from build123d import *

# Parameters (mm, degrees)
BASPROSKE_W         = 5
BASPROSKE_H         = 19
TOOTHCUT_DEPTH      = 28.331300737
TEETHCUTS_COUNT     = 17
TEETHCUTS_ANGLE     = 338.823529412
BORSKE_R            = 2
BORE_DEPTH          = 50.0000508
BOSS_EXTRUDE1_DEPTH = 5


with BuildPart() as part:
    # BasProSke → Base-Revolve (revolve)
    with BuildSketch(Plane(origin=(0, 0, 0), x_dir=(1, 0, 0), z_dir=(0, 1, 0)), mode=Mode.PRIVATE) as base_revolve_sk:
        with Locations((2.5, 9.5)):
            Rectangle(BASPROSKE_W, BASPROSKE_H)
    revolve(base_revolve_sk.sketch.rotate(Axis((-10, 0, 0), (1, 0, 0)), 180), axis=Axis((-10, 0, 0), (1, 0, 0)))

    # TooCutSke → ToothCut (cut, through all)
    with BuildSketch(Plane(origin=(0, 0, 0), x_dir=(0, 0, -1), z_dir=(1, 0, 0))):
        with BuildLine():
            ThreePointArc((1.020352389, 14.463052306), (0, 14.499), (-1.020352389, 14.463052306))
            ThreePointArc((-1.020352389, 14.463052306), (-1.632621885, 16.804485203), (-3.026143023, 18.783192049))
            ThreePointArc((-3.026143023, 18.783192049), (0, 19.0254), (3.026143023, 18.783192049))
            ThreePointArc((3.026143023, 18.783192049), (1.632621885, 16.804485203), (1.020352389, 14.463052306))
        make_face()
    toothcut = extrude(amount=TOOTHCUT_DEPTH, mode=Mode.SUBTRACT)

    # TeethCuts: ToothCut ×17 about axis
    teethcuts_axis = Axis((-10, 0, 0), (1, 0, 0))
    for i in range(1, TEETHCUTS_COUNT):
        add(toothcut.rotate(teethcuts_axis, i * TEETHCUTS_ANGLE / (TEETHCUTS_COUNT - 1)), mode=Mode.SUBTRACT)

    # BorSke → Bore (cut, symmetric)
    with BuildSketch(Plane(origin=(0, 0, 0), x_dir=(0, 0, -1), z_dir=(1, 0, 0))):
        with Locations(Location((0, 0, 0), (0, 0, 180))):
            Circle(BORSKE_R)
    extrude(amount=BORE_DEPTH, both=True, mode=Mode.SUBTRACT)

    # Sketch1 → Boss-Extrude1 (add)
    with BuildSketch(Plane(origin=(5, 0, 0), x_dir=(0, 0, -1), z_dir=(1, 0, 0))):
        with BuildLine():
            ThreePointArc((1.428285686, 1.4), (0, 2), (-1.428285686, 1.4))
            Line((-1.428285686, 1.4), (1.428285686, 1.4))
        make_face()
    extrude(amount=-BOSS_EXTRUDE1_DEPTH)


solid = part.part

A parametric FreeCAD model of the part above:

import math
import FreeCAD as App
import Part
import Sketcher

V = App.Vector

doc = App.newDocument("Part")
body = doc.addObject("PartDesign::Body", "Body")

sketch1 = body.newObject("Sketcher::SketchObject", "Sketch")
sketch1.AttachmentSupport = (doc.getObject("XZ_Plane"), [""])
sketch1.MapMode = "FlatFace"
sketch1.addGeometry(Part.LineSegment(V(0, -19, 0), V(0, 0, 0)), False)
sketch1.addGeometry(Part.LineSegment(V(0, 0, 0), V(5, 0, 0)), False)
sketch1.addGeometry(Part.LineSegment(V(5, 0, 0), V(5, -19, 0)), False)
sketch1.addGeometry(Part.LineSegment(V(5, -19, 0), V(0, -19, 0)), False)
sketch1.addConstraint(Sketcher.Constraint("Coincident", 0, 2, 1, 1))
sketch1.addConstraint(Sketcher.Constraint("Coincident", 1, 2, 2, 1))
sketch1.addConstraint(Sketcher.Constraint("Coincident", 2, 2, 3, 1))
sketch1.addConstraint(Sketcher.Constraint("Coincident", 3, 2, 0, 1))
sketch1.addConstraint(Sketcher.Constraint("Vertical", 0))
sketch1.addConstraint(Sketcher.Constraint("Horizontal", 1))
sketch1.addConstraint(Sketcher.Constraint("Vertical", 2))
sketch1.addConstraint(Sketcher.Constraint("Horizontal", 3))
sketch1.addConstraint(Sketcher.Constraint("Coincident", 0, 2, -1, 1))
sketch1.addConstraint(Sketcher.Constraint("DistanceX", 1, 1, 1, 2, 5.0))
sketch1.addConstraint(Sketcher.Constraint("DistanceY", 0, 1, 0, 2, 19.0))
revolution = body.newObject("PartDesign::Revolution", "Revolution")
revolution.Profile = sketch1
revolution.ReferenceAxis = (sketch1, ["H_Axis"])
revolution.Angle = 360

sketch2 = body.newObject("Sketcher::SketchObject", "Sketch001")
sketch2.AttachmentSupport = (doc.getObject("YZ_Plane"), [""])
sketch2.MapMode = "FlatFace"
sketch2.addGeometry(Part.ArcOfCircle(Part.Circle(V(0, 0, 0), V(0, 0, 1), 14.499), math.radians(-4.035468), math.radians(4.035468)), False)
sketch2.addGeometry(Part.ArcOfCircle(Part.Circle(V(13.940915, -7.800277, 0), V(0, 0, 1), 6.8), math.radians(44.593999), math.radians(85.596214)), False)
sketch2.addGeometry(Part.ArcOfCircle(Part.Circle(V(0, 0, 0), V(0, 0, 1), 19.0254), math.radians(-9.152226), math.radians(9.152226)), False)
sketch2.addGeometry(Part.ArcOfCircle(Part.Circle(V(13.940915, 7.800277, 0), V(0, 0, 1), 6.8), math.radians(-85.596214), math.radians(-44.593999)), False)
sketch2.addConstraint(Sketcher.Constraint("Coincident", 0, 1, 1, 2))
sketch2.addConstraint(Sketcher.Constraint("Coincident", 1, 1, 2, 1))
sketch2.addConstraint(Sketcher.Constraint("Coincident", 2, 2, 3, 2))
sketch2.addConstraint(Sketcher.Constraint("Coincident", 3, 1, 0, 2))
sketch2.addConstraint(Sketcher.Constraint("Coincident", 0, 3, -1, 1))
sketch2.addConstraint(Sketcher.Constraint("Coincident", 2, 3, -1, 1))
sketch2.addConstraint(Sketcher.Constraint("Equal", 1, 3))
sketch2.addConstraint(Sketcher.Constraint("Symmetric", 1, 3, 3, 3, -1))
sketch2.addConstraint(Sketcher.Constraint("Radius", 1, 6.8))
sketch2.addConstraint(Sketcher.Constraint("Radius", 0, 14.499))
sketch2.addConstraint(Sketcher.Constraint("Radius", 2, 19.0254))
sketch2.addConstraint(Sketcher.Constraint("DistanceY", 0, 1, 3, 3, 8.820629))
sketch2.addConstraint(Sketcher.Constraint("DistanceX", 0, 1, 1, 1, 4.32014))
pocket1 = body.newObject("PartDesign::Pocket", "Pocket")
pocket1.Profile = sketch2
pocket1.Type = "ThroughAll"
pocket1.Reversed = True
doc.recompute()

polarpattern = body.newObject("PartDesign::PolarPattern", "PolarPattern")
polarpattern.Originals = [pocket1]
polarpattern.Axis = (doc.getObject("X_Axis"), [""])
polarpattern.Angle = 360
polarpattern.Occurrences = 17
body.Tip = polarpattern

sketch3 = body.newObject("Sketcher::SketchObject", "Sketch002")
sketch3.AttachmentSupport = (doc.getObject("YZ_Plane"), [""])
sketch3.MapMode = "FlatFace"
sketch3.addGeometry(Part.Circle(V(0, 0, 0), V(0, 0, 1), 2), False)
sketch3.addConstraint(Sketcher.Constraint("Coincident", 0, 3, -1, 1))
sketch3.addConstraint(Sketcher.Constraint("Diameter", 0, 4.0))
pocket2 = body.newObject("PartDesign::Pocket", "Pocket001")
pocket2.Profile = sketch3
pocket2.Length = 100.000102
pocket2.Midplane = True

sketch4 = body.newObject("Sketcher::SketchObject", "Sketch003")
sketch4.AttachmentSupport = (doc.getObject("YZ_Plane"), [""])
sketch4.MapMode = "FlatFace"
sketch4.AttachmentOffset = App.Placement(V(0, 0, 5), App.Rotation())
sketch4.addGeometry(Part.ArcOfCircle(Part.Circle(V(0, 0, 0), V(0, 0, 1), 2), math.radians(-45.572996), math.radians(45.572996)), False)
sketch4.addGeometry(Part.LineSegment(V(1.4, 1.428286, 0), V(1.4, -1.428286, 0)), False)
sketch4.addConstraint(Sketcher.Constraint("Coincident", 0, 1, 1, 2))
sketch4.addConstraint(Sketcher.Constraint("Coincident", 1, 1, 0, 2))
sketch4.addConstraint(Sketcher.Constraint("Vertical", 1))
sketch4.addConstraint(Sketcher.Constraint("Coincident", 0, 3, -1, 1))
sketch4.addConstraint(Sketcher.Constraint("Radius", 0, 2.0))
sketch4.addConstraint(Sketcher.Constraint("DistanceX", -1, 1, 0, 1, 1.4))
pad1 = body.newObject("PartDesign::Pad", "Pad")
pad1.Profile = sketch4
pad1.Length = 5
pad1.Reversed = True

doc.recompute()
